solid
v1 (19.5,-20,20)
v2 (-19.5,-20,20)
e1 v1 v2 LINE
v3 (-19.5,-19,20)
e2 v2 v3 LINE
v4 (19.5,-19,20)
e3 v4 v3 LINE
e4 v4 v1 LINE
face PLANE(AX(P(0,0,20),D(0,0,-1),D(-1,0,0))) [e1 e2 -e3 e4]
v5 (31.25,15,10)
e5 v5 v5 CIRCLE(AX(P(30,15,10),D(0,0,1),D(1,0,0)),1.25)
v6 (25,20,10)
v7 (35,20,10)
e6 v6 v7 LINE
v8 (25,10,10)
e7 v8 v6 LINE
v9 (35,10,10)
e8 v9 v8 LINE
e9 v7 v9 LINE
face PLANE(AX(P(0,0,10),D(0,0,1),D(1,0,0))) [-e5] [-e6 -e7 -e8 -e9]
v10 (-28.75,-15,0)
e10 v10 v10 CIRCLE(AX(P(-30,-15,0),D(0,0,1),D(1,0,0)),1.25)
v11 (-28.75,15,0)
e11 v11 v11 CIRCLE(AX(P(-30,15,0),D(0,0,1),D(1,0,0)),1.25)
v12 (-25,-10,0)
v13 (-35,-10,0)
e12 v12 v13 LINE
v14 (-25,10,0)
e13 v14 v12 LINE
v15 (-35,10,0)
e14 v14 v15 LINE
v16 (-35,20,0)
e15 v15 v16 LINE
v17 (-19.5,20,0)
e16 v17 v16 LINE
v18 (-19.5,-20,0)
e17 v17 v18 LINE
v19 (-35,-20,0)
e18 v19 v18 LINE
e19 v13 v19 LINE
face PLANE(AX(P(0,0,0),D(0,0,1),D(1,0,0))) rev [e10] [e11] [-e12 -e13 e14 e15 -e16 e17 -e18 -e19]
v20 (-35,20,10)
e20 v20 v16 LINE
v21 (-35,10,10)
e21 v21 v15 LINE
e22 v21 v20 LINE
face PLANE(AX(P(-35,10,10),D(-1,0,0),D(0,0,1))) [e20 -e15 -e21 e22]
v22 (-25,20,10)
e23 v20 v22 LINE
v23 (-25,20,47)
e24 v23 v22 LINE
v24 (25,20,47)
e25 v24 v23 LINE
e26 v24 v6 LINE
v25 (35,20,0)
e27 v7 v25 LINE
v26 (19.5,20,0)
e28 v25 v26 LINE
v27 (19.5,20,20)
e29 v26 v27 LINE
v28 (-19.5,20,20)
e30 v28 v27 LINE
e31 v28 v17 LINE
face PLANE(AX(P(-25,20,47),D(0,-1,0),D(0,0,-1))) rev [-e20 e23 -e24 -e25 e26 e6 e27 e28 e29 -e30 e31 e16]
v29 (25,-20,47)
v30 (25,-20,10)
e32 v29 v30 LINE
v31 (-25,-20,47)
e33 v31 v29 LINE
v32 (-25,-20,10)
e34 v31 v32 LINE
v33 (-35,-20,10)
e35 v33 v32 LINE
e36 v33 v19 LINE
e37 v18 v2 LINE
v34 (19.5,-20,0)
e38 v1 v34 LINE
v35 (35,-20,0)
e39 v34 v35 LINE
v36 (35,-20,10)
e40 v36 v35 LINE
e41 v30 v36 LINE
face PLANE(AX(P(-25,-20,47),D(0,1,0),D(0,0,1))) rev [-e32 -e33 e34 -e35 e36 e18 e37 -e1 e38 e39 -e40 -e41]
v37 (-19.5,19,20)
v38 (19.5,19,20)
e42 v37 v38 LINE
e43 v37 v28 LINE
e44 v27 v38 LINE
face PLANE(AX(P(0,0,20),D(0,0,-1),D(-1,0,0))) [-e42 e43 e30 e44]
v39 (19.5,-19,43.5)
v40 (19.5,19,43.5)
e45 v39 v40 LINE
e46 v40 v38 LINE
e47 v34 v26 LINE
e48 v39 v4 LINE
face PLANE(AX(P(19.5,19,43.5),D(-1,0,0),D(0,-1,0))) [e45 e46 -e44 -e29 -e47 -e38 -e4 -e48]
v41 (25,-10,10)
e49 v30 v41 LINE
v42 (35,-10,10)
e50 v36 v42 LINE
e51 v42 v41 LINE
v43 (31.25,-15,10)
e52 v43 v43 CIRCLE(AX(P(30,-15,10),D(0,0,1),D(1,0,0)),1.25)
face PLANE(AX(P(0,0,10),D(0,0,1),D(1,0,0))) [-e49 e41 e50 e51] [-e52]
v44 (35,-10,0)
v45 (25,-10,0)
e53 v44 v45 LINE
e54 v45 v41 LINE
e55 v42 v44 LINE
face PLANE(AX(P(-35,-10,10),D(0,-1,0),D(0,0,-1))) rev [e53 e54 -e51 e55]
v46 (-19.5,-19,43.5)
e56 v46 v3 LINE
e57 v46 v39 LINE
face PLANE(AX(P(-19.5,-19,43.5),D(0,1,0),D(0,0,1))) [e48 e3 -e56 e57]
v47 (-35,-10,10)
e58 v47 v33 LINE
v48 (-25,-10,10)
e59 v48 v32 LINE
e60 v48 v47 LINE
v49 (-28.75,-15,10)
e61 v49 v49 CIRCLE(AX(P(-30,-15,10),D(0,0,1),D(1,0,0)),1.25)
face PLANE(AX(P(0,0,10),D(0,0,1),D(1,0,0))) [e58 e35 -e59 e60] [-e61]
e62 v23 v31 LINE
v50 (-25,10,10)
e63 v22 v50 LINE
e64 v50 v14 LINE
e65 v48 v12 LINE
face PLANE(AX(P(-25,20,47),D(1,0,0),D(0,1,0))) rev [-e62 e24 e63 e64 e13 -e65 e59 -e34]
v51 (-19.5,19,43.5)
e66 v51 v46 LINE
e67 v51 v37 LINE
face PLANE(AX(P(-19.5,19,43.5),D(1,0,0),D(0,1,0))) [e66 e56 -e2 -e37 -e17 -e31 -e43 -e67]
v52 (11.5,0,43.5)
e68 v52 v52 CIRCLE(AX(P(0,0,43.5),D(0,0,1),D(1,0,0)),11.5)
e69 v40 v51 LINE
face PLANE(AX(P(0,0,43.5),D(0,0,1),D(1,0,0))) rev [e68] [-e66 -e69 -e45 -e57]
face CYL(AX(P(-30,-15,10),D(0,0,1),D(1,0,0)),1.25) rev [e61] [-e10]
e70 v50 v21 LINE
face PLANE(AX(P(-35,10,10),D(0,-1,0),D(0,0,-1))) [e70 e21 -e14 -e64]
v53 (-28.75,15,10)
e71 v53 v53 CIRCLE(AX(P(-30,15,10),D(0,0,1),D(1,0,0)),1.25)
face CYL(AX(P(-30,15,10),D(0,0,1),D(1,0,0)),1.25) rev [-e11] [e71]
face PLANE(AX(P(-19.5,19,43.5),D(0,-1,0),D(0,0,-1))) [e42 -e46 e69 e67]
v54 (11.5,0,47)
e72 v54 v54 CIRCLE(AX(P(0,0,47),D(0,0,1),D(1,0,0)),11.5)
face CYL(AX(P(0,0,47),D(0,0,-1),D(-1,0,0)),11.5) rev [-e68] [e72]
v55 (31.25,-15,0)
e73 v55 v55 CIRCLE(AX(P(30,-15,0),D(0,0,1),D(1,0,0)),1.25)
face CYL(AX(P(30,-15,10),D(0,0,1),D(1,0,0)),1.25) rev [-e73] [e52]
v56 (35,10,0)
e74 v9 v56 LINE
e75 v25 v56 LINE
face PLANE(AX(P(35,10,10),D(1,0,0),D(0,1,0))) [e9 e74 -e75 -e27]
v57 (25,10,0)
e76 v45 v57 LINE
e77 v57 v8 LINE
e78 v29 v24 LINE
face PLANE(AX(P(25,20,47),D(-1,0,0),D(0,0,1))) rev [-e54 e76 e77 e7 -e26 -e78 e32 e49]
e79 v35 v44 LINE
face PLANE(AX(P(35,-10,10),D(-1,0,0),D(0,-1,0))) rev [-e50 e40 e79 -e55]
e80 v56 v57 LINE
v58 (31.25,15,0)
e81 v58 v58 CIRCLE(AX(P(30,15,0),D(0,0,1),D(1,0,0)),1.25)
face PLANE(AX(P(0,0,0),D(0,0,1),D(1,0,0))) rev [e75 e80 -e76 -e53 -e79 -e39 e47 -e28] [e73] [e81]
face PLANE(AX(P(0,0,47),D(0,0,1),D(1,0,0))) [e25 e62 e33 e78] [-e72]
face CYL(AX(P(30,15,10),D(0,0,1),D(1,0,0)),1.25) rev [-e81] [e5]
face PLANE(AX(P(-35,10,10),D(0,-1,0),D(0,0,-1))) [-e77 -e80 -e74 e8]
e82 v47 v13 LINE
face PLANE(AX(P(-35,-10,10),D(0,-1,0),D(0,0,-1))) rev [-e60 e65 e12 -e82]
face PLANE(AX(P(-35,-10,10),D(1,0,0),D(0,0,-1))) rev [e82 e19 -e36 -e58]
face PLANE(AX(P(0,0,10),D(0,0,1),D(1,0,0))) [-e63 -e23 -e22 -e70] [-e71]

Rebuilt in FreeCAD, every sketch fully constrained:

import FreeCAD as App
import Part
import Sketcher
from FreeCAD import Vector


def add_polygon(sketch, points):
    """Adds a closed chain of lines whose ends are joined by coincident constraints."""
    first, n = sketch.GeometryCount, len(points)
    for a, b in zip(points, points[1:] + points[:1]):
        sketch.addGeometry(Part.LineSegment(App.Vector(*a, 0), App.Vector(*b, 0)), False)
    for i in range(n):
        sketch.addConstraint(Sketcher.Constraint("Coincident", first + i, 2, first + (i + 1) % n, 1))

doc = App.newDocument("Part")
body = doc.addObject("PartDesign::Body", "Body")

# Sketch on XY plane
sketch1 = body.newObject("Sketcher::SketchObject", "Sketch")
sketch1.AttachmentSupport = (doc.getObject("XY_Plane"), [""])
sketch1.MapMode = "FlatFace"
add_polygon(sketch1, [(-25, 20), (-25, -20), (25, -20), (25, 20)])  # lines 0-3
sketch1.addConstraint([
    Sketcher.Constraint("Vertical", 0),
    Sketcher.Constraint("Horizontal", 1),
    Sketcher.Constraint("Vertical", 2),
    Sketcher.Constraint("Horizontal", 3),
    Sketcher.Constraint("Symmetric", 0, 2, 2, 2, -1, 1),
    Sketcher.Constraint("DistanceX", 1, 1, 1, 2, 50.0),
    Sketcher.Constraint("DistanceY", 0, 2, 0, 1, 40.0),
])
pad1 = body.newObject("PartDesign::Pad", "Pad")
pad1.Profile = sketch1
pad1.Length = 47

# Sketch on XY plane
sketch2 = body.newObject("Sketcher::SketchObject", "Sketch001")
sketch2.AttachmentSupport = (doc.getObject("XY_Plane"), [""])
sketch2.MapMode = "FlatFace"
add_polygon(sketch2, [(-35, -10), (-35, -20), (35, -20), (35, -10)])  # lines 0-3
sketch2.addConstraint([
    Sketcher.Constraint("Vertical", 0),
    Sketcher.Constraint("Horizontal", 1),
    Sketcher.Constraint("Vertical", 2),
    Sketcher.Constraint("Horizontal", 3),
    Sketcher.Constraint("DistanceX", 1, 1, 1, 2, 70.0),
    Sketcher.Constraint("DistanceY", 0, 2, 0, 1, 10.0),
    Sketcher.Constraint("DistanceX", 0, 2, -1, 1, 35.0),
    Sketcher.Constraint("DistanceY", 0, 2, -1, 1, 20.0),
])
pad2 = body.newObject("PartDesign::Pad", "Pad001")
pad2.Profile = sketch2
pad2.Length = 10

# Sketch on XY plane
sketch3 = body.newObject("Sketcher::SketchObject", "Sketch002")
sketch3.AttachmentSupport = (doc.getObject("XY_Plane"), [""])
sketch3.MapMode = "FlatFace"
sketch3.addGeometry(Part.Circle(Vector(0, 0, 0), Vector(0, 0, 1), 12), False)
sketch3.addConstraint([
    Sketcher.Constraint("Coincident", 0, 3, -1, 1),
    Sketcher.Constraint("Diameter", 0, 23.0),
])
pocket1 = body.newObject("PartDesign::Pocket", "Pocket")
pocket1.Profile = sketch3
pocket1.Type = "ThroughAll"
pocket1.Midplane = True

# Sketch on XY plane
sketch4 = body.newObject("Sketcher::SketchObject", "Sketch003")
sketch4.AttachmentSupport = (doc.getObject("XY_Plane"), [""])
sketch4.MapMode = "FlatFace"
add_polygon(sketch4, [(-20, 19), (-20, -19), (20, -19), (20, 19)])  # lines 0-3
sketch4.addConstraint([
    Sketcher.Constraint("Vertical", 0),
    Sketcher.Constraint("Horizontal", 1),
    Sketcher.Constraint("Vertical", 2),
    Sketcher.Constraint("Horizontal", 3),
    Sketcher.Constraint("Symmetric", 0, 2, 2, 2, -1, 1),
    Sketcher.Constraint("DistanceX", 1, 1, 1, 2, 39.0),
    Sketcher.Constraint("DistanceY", 0, 2, 0, 1, 38.0),
])
pocket2 = body.newObject("PartDesign::Pocket", "Pocket001")
pocket2.Profile = sketch4
pocket2.Length = 43.5
pocket2.Reversed = True

# Sketch on XY plane
sketch5 = body.newObject("Sketcher::SketchObject", "Sketch004")
sketch5.AttachmentSupport = (doc.getObject("XY_Plane"), [""])
sketch5.MapMode = "FlatFace"
sketch5.AttachmentOffset = App.Placement(Vector(0, 0, 10), App.Rotation())
sketch5.addGeometry([
    Part.Circle(Vector(30, -15, 0), Vector(0, 0, 1), 1.2),
    Part.Circle(Vector(-30, -15, 0), Vector(0, 0, 1), 1.2),
], False)
sketch5.addConstraint([
    Sketcher.Constraint("Equal", 0, 1),
    Sketcher.Constraint("Symmetric", 0, 3, 1, 3, -2),
    Sketcher.Constraint("Diameter", 0, 2.5),
    Sketcher.Constraint("DistanceX", -1, 1, 0, 3, 30.0),
    Sketcher.Constraint("DistanceY", 0, 3, -1, 1, 15.0),
])
doc.recompute()
hole = body.newObject("PartDesign::Hole", "Hole")
hole.Profile = sketch5
hole.ThreadType = "None"
hole.Diameter = 2.5
hole.DepthType = "ThroughAll"

# Sketch on XY plane
sketch6 = body.newObject("Sketcher::SketchObject", "Sketch005")
sketch6.AttachmentSupport = (doc.getObject("XY_Plane"), [""])
sketch6.MapMode = "FlatFace"
add_polygon(sketch6, [(20, 35), (20, -35), (-20, -35), (-20, 35)])  # lines 0-3
sketch6.addConstraint([
    Sketcher.Constraint("Vertical", 0),
    Sketcher.Constraint("Horizontal", 1),
    Sketcher.Constraint("Vertical", 2),
    Sketcher.Constraint("Horizontal", 3),
    Sketcher.Constraint("Symmetric", 0, 2, 2, 2, -1, 1),
    Sketcher.Constraint("DistanceX", 1, 2, 1, 1, 39.0),
    Sketcher.Constraint("DistanceY", 0, 2, 0, 1, 70.0),
])
pocket3 = body.newObject("PartDesign::Pocket", "Pocket002")
pocket3.Profile = sketch6
pocket3.Length = 20
pocket3.Reversed = True
doc.recompute()

mirrored = body.newObject("PartDesign::Mirrored", "Mirrored")
mirrored.Originals = [pad2, pocket2, hole, pocket3]
mirrored.MirrorPlane = (doc.getObject("XZ_Plane"), [""])
body.Tip = mirrored

doc.recompute()
